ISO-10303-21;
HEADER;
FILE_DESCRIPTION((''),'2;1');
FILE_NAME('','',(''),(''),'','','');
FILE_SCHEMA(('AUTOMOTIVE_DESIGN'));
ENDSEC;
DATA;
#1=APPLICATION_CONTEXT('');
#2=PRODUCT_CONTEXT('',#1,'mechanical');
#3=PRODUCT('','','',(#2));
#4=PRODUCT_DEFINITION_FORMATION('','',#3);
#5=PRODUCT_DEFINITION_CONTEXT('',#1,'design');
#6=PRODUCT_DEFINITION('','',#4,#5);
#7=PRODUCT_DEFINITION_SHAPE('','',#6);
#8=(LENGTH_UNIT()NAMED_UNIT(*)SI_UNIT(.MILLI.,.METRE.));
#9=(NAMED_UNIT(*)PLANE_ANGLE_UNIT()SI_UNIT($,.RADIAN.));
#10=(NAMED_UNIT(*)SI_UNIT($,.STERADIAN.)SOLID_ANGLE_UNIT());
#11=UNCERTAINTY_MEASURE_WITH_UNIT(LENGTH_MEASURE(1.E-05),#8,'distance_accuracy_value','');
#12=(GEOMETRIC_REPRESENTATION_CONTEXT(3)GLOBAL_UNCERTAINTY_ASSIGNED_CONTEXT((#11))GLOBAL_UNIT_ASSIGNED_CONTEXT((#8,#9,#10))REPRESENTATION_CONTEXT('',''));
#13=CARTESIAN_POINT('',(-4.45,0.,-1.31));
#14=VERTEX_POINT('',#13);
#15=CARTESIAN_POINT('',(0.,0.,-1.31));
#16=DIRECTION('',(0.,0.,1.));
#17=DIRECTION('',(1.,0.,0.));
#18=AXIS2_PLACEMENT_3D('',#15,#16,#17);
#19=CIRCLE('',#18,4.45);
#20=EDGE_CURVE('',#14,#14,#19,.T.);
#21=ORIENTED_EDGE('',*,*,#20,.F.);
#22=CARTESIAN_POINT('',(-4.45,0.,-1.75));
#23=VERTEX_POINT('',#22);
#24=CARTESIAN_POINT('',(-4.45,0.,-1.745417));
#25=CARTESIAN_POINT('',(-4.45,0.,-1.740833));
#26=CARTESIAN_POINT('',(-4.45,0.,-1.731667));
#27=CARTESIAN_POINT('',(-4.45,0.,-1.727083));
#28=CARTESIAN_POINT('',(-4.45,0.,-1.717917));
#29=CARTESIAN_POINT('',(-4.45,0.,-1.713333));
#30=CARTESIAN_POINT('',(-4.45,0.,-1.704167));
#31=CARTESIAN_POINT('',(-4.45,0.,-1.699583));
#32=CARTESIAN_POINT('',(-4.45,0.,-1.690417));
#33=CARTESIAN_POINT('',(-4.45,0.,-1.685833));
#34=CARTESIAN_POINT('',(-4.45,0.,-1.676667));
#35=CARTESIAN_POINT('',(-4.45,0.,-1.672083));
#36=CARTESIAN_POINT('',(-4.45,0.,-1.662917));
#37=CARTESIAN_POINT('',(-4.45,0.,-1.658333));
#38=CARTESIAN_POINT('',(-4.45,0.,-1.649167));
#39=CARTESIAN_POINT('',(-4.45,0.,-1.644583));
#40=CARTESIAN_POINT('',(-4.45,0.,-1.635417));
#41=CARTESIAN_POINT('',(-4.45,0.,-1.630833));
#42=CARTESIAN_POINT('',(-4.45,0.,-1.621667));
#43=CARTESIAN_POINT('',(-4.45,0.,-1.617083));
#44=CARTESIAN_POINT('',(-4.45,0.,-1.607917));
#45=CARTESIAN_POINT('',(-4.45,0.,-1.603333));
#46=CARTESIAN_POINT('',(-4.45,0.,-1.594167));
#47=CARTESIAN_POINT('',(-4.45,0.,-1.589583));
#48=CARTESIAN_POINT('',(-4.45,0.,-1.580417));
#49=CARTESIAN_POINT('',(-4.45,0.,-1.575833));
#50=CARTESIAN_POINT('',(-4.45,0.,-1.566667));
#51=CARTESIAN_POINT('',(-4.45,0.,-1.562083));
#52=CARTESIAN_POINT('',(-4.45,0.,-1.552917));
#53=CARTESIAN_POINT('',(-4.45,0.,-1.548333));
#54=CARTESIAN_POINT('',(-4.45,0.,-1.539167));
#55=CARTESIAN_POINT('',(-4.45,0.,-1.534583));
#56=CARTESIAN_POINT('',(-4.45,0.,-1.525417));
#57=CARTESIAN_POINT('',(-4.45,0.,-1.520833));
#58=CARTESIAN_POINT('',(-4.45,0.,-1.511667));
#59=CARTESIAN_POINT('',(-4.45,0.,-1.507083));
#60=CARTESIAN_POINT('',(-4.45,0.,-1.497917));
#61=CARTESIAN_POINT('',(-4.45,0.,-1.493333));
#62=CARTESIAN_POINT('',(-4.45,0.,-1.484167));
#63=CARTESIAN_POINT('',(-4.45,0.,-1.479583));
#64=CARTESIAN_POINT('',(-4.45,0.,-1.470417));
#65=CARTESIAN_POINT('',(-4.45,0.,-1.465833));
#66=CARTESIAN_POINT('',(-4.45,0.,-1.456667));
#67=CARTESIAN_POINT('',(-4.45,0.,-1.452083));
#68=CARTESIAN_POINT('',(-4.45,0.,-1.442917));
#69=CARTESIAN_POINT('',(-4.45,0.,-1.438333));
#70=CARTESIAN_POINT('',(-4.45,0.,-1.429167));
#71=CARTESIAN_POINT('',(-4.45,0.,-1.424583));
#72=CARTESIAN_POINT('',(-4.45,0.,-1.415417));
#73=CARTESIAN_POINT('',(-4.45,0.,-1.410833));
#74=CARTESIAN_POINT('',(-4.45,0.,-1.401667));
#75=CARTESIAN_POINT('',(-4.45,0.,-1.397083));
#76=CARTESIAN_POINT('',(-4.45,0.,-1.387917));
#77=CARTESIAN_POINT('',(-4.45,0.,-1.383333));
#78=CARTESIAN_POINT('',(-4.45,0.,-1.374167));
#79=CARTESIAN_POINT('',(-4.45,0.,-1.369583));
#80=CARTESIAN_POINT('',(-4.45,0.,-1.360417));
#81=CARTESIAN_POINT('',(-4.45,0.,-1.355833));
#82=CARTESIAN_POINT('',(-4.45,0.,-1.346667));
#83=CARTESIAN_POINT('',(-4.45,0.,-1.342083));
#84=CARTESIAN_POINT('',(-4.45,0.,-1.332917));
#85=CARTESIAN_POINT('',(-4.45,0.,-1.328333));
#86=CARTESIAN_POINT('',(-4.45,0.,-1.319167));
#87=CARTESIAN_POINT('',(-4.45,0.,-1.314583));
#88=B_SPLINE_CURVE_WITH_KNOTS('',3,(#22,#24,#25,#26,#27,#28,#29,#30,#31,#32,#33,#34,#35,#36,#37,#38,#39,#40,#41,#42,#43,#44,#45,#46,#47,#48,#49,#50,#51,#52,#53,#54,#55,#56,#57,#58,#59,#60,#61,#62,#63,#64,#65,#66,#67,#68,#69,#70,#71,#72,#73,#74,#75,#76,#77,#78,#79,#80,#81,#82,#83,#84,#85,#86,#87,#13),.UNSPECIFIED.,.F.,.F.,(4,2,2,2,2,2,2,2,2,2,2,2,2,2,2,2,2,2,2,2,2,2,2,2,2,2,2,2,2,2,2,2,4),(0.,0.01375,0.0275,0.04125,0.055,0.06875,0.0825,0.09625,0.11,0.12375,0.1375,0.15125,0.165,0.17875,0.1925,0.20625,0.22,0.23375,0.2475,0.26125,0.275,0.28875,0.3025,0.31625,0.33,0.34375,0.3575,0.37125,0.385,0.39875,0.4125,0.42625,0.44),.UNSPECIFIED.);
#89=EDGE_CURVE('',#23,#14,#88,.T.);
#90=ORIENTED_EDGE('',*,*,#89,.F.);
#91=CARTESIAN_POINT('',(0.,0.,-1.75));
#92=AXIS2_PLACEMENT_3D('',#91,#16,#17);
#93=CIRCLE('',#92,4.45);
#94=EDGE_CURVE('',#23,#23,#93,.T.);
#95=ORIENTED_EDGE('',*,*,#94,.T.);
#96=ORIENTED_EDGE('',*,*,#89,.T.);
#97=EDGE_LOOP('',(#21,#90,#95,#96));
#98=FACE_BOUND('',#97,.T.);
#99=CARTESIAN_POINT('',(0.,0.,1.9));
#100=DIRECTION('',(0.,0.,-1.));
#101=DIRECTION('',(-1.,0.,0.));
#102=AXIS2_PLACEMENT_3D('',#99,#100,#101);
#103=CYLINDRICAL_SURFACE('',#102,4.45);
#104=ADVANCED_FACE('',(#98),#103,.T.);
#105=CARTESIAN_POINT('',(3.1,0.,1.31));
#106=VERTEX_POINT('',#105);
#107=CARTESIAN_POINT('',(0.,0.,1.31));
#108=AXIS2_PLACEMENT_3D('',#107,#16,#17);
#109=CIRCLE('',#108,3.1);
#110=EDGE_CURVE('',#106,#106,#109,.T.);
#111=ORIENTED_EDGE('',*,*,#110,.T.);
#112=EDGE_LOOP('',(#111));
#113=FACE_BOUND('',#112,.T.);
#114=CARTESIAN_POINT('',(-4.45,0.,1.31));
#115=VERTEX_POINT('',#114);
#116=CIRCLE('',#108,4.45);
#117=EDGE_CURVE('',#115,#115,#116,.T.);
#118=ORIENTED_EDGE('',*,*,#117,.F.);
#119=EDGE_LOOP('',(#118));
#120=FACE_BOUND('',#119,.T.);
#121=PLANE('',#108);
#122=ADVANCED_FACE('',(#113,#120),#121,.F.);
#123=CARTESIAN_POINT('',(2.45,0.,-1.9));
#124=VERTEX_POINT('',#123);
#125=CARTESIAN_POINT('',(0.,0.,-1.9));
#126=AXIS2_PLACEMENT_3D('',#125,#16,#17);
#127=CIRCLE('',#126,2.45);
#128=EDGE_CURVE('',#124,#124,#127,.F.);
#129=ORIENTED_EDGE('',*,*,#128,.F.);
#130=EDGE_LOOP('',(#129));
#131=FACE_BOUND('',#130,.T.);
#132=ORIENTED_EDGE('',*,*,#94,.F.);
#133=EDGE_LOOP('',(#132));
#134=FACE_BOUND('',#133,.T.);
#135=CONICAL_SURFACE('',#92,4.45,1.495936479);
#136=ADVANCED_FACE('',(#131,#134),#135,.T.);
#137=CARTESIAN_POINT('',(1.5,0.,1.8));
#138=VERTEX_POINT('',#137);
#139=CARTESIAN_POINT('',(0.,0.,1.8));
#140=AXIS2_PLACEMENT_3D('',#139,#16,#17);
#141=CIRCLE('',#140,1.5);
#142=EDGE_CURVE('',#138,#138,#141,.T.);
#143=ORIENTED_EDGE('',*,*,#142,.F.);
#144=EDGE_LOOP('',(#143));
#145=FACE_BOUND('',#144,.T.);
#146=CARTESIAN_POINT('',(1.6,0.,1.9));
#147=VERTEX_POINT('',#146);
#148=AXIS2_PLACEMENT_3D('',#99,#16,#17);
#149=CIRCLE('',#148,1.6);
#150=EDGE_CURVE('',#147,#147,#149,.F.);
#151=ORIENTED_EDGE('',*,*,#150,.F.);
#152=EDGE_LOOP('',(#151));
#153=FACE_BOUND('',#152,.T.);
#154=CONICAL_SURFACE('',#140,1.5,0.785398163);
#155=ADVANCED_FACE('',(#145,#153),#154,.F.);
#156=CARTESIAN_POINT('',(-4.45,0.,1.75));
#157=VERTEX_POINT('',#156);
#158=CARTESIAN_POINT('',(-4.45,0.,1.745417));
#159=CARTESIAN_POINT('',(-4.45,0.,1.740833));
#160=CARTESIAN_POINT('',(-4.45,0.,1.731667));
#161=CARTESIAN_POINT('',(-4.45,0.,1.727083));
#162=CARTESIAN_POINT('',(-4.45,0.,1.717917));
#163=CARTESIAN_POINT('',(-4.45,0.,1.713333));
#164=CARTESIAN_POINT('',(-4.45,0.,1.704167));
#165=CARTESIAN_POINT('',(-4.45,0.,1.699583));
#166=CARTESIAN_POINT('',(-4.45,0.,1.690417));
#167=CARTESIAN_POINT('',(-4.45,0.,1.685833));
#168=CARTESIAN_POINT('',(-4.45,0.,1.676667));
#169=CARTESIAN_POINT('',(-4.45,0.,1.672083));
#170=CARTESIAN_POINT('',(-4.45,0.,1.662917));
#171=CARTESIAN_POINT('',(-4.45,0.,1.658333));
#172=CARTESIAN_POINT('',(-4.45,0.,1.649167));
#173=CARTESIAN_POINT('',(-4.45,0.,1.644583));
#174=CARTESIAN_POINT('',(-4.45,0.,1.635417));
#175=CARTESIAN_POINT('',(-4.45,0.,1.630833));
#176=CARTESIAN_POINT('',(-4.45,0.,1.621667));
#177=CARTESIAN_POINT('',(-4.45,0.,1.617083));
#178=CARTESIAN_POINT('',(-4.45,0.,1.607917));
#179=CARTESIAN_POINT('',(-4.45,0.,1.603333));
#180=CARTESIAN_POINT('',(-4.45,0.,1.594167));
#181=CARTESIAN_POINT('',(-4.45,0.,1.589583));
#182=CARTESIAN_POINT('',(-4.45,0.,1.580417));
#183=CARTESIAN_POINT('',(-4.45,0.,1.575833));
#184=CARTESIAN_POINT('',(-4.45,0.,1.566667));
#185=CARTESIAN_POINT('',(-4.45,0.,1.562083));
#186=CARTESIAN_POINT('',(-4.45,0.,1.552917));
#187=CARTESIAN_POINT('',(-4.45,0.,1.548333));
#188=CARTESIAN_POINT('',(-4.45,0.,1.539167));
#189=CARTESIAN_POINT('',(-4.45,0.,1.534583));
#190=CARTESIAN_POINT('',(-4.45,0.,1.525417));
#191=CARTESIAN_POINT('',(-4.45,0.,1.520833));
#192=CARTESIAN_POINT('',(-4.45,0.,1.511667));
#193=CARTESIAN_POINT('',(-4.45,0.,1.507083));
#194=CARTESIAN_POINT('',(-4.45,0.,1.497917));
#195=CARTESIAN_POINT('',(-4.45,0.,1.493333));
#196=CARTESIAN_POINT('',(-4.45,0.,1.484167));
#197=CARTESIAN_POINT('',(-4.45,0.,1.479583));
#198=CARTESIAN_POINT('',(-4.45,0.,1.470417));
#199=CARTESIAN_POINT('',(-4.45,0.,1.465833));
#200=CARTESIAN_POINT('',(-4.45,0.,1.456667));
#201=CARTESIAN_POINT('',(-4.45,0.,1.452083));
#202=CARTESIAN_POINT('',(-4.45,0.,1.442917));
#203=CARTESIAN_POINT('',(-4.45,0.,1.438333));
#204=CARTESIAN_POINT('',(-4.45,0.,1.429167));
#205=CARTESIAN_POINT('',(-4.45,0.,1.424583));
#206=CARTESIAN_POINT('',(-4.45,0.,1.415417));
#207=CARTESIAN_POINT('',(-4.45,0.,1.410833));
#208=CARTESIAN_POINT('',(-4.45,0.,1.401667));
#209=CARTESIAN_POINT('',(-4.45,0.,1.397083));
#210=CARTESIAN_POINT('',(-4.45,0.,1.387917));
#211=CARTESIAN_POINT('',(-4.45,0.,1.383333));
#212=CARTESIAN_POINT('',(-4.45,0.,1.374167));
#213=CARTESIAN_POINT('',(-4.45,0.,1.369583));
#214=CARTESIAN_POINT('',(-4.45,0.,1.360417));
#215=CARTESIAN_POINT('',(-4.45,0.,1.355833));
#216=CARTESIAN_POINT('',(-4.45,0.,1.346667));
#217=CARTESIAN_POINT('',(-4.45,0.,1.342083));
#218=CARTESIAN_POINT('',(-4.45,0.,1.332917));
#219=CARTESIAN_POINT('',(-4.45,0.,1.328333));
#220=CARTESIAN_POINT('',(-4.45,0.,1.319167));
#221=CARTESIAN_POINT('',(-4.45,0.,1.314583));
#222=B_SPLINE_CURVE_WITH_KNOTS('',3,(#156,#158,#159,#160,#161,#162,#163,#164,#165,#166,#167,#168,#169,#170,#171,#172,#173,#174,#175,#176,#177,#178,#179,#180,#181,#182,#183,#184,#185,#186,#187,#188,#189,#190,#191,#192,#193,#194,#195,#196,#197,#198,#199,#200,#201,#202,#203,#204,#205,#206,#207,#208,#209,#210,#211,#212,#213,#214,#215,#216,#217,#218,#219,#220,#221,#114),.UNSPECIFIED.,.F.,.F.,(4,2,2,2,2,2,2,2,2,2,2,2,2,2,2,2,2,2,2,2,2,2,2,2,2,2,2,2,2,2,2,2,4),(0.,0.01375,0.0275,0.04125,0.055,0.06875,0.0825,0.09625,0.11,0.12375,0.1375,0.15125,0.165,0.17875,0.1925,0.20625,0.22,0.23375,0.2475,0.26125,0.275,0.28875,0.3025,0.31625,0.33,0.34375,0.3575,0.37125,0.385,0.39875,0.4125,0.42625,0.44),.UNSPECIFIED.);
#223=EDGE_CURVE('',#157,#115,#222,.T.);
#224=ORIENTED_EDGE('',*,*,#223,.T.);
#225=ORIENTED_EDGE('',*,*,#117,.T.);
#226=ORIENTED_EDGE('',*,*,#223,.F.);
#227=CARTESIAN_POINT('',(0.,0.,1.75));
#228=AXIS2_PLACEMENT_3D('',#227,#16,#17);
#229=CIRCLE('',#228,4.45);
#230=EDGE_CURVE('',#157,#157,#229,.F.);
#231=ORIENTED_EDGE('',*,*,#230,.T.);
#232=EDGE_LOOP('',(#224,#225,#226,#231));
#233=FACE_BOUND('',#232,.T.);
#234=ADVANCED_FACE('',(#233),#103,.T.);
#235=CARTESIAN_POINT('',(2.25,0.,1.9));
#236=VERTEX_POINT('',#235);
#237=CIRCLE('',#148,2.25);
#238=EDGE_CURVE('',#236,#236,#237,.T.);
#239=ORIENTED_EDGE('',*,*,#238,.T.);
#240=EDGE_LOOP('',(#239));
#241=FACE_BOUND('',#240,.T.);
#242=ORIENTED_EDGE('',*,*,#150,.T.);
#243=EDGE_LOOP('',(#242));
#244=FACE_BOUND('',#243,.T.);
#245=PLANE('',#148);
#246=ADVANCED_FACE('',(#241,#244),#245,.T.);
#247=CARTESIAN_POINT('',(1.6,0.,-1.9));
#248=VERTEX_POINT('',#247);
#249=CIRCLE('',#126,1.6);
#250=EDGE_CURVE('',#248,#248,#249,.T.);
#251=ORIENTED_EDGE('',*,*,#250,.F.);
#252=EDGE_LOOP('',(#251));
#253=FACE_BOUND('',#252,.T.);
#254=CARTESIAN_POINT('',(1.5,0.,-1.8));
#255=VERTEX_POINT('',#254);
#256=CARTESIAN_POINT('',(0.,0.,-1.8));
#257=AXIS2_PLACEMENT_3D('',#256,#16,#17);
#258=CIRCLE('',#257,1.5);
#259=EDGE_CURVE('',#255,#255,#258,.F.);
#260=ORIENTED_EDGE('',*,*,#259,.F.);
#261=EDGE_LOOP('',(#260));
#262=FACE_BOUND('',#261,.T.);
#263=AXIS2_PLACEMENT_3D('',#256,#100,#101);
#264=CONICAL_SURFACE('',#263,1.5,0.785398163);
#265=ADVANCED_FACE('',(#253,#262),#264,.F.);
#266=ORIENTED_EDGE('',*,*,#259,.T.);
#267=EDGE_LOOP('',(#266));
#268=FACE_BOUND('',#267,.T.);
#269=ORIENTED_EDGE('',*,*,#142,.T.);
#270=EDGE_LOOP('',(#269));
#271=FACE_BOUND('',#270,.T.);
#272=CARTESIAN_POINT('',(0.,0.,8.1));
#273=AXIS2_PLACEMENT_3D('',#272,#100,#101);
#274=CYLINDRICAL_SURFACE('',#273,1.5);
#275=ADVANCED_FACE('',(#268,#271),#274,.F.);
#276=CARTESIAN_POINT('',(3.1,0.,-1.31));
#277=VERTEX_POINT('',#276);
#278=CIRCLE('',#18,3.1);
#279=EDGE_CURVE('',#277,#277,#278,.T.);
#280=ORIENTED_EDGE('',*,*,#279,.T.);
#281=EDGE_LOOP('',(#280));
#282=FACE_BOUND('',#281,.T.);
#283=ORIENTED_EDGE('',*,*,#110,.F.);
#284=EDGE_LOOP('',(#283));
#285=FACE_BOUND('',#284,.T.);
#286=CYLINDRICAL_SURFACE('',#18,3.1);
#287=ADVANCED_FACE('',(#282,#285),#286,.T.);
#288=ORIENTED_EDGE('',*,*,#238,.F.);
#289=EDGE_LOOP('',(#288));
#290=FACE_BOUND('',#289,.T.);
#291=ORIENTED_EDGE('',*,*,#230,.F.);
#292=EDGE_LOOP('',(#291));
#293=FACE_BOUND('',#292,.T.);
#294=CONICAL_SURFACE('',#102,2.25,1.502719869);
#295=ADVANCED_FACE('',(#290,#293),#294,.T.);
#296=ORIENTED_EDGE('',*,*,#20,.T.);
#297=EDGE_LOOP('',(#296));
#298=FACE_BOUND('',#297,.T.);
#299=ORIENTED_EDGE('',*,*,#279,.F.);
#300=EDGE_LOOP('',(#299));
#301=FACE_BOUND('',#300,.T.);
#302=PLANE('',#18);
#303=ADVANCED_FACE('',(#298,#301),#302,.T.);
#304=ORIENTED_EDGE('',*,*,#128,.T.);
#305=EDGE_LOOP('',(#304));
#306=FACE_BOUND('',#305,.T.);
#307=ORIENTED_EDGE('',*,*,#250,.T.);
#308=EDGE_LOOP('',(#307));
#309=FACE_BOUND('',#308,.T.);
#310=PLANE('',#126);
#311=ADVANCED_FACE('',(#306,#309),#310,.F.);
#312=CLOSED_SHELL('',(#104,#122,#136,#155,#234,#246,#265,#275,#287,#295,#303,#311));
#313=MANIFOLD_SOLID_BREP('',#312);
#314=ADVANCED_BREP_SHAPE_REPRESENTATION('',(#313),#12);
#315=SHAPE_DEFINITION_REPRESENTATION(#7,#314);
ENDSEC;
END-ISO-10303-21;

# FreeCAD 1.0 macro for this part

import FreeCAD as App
import Part
import Sketcher

V = App.Vector
Q = App.Units.Quantity


def edges_at(feature, points):
    """Names of the edges that pass closest to the given points."""
    edges = feature.Shape.Edges
    near = lambda p: min(range(len(edges)), key=lambda i: edges[i].distToShape(Part.Vertex(*p))[0])
    return sorted({f"Edge{near(p) + 1}" for p in points})

doc = App.newDocument("Part")
params = doc.addObject("Spreadsheet::Sheet", "Params")
for row, (alias, value) in enumerate([
    ("sketch1_diameter", "8.9 mm"),
    ("pad1_length", "3.8 mm"),
    ("sketch2_diameter", "8.9 mm"),
    ("sketch2_diameter2", "6.2 mm"),
    ("pocket1_length", "2.62 mm"),
    ("sketch3_diameter", "2 mm"),
    ("pocket2_length", "3.8 mm"),
    ("chamfer_size", "0.25 mm"),
    ("chamfer2_size", "2 mm"),
    ("chamfer2_size2", "0.15 mm"),
    ("chamfer3_size", "0.15 mm"),
    ("chamfer3_size2", "2.2 mm"),
    ("sketch4_diameter", "3 mm"),
    ("pocket3_length", "10 mm"),
    ("chamfer4_size", "0.1 mm"),
], start=1):
    params.set(f"A{row}", alias)
    params.set(f"B{row}", "=" + value)
    params.setAlias(f"B{row}", alias)

body = doc.addObject("PartDesign::Body", "Body")

sketch1 = doc.addObject("Sketcher::SketchObject", "Sketch")
body.addObject(sketch1)
sketch1.AttachmentSupport = (doc.XY_Plane, [""])
sketch1.MapMode = "FlatFace"
sketch1.addGeometry(Part.Circle(V(0, 0, 0), V(0, 0, 1), 4.5), False)
sketch1.addConstraint([
    Sketcher.Constraint("Coincident", 0, 3, -1, 1),
    Sketcher.Constraint("Diameter", 0, Q("8.9 mm")),
])
sketch1.setExpression("Constraints[1]", "Params.sketch1_diameter")
pad1 = doc.addObject("PartDesign::Pad", "Pad")
body.addObject(pad1)
pad1.Profile = sketch1
pad1.setExpression("Length", "Params.pad1_length")
pad1.Midplane = True

sketch2 = doc.addObject("Sketcher::SketchObject", "Sketch001")
body.addObject(sketch2)
sketch2.AttachmentSupport = (doc.XY_Plane, [""])
sketch2.MapMode = "FlatFace"
sketch2.addGeometry([
    Part.Circle(V(0, 0, 0), V(0, 0, 1), 4.5),
    Part.Circle(V(0, 0, 0), V(0, 0, 1), 3.1),
], False)
sketch2.addConstraint([
    Sketcher.Constraint("Coincident", 0, 3, -1, 1),
    Sketcher.Constraint("Coincident", 1, 3, -1, 1),
    Sketcher.Constraint("Diameter", 0, Q("8.9 mm")),
    Sketcher.Constraint("Diameter", 1, Q("6.2 mm")),
])
sketch2.setExpression("Constraints[2]", "Params.sketch2_diameter")
sketch2.setExpression("Constraints[3]", "Params.sketch2_diameter2")
pocket1 = doc.addObject("PartDesign::Pocket", "Pocket")
body.addObject(pocket1)
pocket1.Profile = sketch2
pocket1.setExpression("Length", "Params.pocket1_length")
pocket1.Midplane = True

sketch3 = doc.addObject("Sketcher::SketchObject", "Sketch002")
body.addObject(sketch3)
sketch3.AttachmentSupport = (doc.XY_Plane, [""])
sketch3.MapMode = "FlatFace"
sketch3.AttachmentOffset = App.Placement(V(0, 0, 1.9), App.Rotation())
sketch3.addGeometry(Part.Circle(V(0, 0, 0), V(0, 0, 1), 1), False)
sketch3.addConstraint([
    Sketcher.Constraint("Coincident", 0, 3, -1, 1),
    Sketcher.Constraint("Diameter", 0, Q("2 mm")),
])
sketch3.setExpression("Constraints[1]", "Params.sketch3_diameter")
pocket2 = doc.addObject("PartDesign::Pocket", "Pocket001")
body.addObject(pocket2)
pocket2.Profile = sketch3
pocket2.setExpression("Length", "Params.pocket2_length")
doc.recompute()

chamfer = doc.addObject("PartDesign::Chamfer", "Chamfer")
body.addObject(chamfer)
chamfer.Base = (pocket2, edges_at(pocket2, [(-1, 0, 1.9), (-1, 0, -1.9)]))
chamfer.setExpression("Size", "Params.chamfer_size")
doc.recompute()

chamfer2 = doc.addObject("PartDesign::Chamfer", "Chamfer001")
body.addObject(chamfer2)
chamfer2.Base = (chamfer, edges_at(chamfer, [(4.45, 0, -1.9)]))
chamfer2.ChamferType = "Two distances"
chamfer2.setExpression("Size", "Params.chamfer2_size")
chamfer2.setExpression("Size2", "Params.chamfer2_size2")
doc.recompute()

chamfer3 = doc.addObject("PartDesign::Chamfer", "Chamfer002")
body.addObject(chamfer3)
chamfer3.Base = (chamfer2, edges_at(chamfer2, [(4.45, 0, 1.9)]))
chamfer3.ChamferType = "Two distances"
chamfer3.setExpression("Size", "Params.chamfer3_size")
chamfer3.setExpression("Size2", "Params.chamfer3_size2")
chamfer3.FlipDirection = True

sketch4 = doc.addObject("Sketcher::SketchObject", "Sketch003")
body.addObject(sketch4)
sketch4.AttachmentSupport = (doc.XY_Plane, [""])
sketch4.MapMode = "FlatFace"
sketch4.AttachmentOffset = App.Placement(V(0, 0, -1.9), App.Rotation())
sketch4.addGeometry(Part.Circle(V(0, 0, 0), V(0, 0, 1), 1.5), False)
sketch4.addConstraint([
    Sketcher.Constraint("Coincident", 0, 3, -1, 1),
    Sketcher.Constraint("Diameter", 0, Q("3 mm")),
])
sketch4.setExpression("Constraints[1]", "Params.sketch4_diameter")
pocket3 = doc.addObject("PartDesign::Pocket", "Pocket002")
body.addObject(pocket3)
pocket3.Profile = sketch4
pocket3.setExpression("Length", "Params.pocket3_length")
pocket3.Reversed = True
doc.recompute()

chamfer4 = doc.addObject("PartDesign::Chamfer", "Chamfer003")
body.addObject(chamfer4)
chamfer4.Base = (pocket3, edges_at(pocket3, [(1.5, 0, 1.9), (1.5, 0, -1.9)]))
chamfer4.setExpression("Size", "Params.chamfer4_size")

doc.recompute()
